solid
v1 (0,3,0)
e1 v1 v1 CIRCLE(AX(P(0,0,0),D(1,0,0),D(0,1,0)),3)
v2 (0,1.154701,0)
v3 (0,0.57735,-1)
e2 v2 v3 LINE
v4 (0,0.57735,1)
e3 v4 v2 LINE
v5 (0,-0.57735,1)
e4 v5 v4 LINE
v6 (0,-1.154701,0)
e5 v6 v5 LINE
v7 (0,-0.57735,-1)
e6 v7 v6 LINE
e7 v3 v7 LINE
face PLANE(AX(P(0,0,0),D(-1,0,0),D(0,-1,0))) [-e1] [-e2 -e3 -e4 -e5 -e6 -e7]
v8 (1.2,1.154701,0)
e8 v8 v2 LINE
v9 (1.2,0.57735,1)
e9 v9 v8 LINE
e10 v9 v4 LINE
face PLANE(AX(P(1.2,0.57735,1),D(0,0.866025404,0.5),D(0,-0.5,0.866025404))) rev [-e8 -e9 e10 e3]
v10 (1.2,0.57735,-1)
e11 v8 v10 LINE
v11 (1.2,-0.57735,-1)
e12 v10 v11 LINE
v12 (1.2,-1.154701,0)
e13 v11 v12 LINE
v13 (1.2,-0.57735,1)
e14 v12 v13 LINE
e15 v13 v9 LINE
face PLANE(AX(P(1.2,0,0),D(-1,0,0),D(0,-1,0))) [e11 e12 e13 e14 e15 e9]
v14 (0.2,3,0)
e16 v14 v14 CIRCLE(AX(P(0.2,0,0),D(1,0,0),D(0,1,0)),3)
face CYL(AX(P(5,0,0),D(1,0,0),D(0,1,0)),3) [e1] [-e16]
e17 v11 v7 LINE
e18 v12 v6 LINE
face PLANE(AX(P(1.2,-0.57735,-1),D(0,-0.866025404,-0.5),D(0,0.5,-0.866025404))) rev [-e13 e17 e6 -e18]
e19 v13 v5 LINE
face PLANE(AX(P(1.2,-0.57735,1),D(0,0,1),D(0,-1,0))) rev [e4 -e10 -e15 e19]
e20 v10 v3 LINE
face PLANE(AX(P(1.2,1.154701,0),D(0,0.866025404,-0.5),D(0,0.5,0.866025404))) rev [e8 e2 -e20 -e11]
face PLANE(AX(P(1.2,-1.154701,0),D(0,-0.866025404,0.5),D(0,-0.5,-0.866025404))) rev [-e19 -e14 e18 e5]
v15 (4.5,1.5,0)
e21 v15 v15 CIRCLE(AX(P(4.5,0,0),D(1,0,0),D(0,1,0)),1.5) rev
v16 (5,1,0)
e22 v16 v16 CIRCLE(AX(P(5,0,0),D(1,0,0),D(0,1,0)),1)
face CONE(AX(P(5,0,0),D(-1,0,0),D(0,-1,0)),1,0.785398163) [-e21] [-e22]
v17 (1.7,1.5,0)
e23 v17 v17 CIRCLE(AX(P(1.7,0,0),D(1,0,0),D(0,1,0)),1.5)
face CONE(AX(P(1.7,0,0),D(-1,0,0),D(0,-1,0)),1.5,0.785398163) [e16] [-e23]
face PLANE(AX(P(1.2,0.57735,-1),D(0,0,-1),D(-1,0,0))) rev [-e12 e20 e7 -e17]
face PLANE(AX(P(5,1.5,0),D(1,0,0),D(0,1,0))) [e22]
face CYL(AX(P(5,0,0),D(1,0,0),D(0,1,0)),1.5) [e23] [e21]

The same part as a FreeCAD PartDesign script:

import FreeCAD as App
import Part
import Sketcher
from FreeCAD import Vector
Q = App.Units.Quantity


def edges_at(feature, points):
    """Names of the edges that pass closest to the given points."""
    edges = feature.Shape.Edges
    near = lambda p: min(range(len(edges)), key=lambda i: edges[i].distToShape(Part.Vertex(*p))[0])
    return sorted({f"Edge{near(p) + 1}" for p in points})

doc = App.newDocument("Part")
body = doc.addObject("PartDesign::Body", "Body")

# Sketch on XY plane
sketch1 = body.newObject("Sketcher::SketchObject", "Sketch")
sketch1.AttachmentSupport = (doc.getObject("XY_Plane"), [""])
sketch1.MapMode = "FlatFace"
sketch1.addGeometry(Part.LineSegment(Vector(0, 3, 0), Vector(0, 0, 0)), False)
sketch1.addGeometry(Part.LineSegment(Vector(0, 0, 0), Vector(5, 0, 0)), False)
sketch1.addGeometry(Part.LineSegment(Vector(5, 0, 0), Vector(5, 1.5, 0)), False)
sketch1.addGeometry(Part.LineSegment(Vector(5, 1.5, 0), Vector(1.7, 1.5, 0)), False)
sketch1.addGeometry(Part.LineSegment(Vector(1.7, 1.5, 0), Vector(0.2, 3, 0)), False)
sketch1.addGeometry(Part.LineSegment(Vector(0.2, 3, 0), Vector(0, 3, 0)), False)
sketch1.addConstraint(Sketcher.Constraint("Coincident", 0, 2, 1, 1))
sketch1.addConstraint(Sketcher.Constraint("Coincident", 1, 2, 2, 1))
sketch1.addConstraint(Sketcher.Constraint("Coincident", 2, 2, 3, 1))
sketch1.addConstraint(Sketcher.Constraint("Coincident", 3, 2, 4, 1))
sketch1.addConstraint(Sketcher.Constraint("Coincident", 4, 2, 5, 1))
sketch1.addConstraint(Sketcher.Constraint("Coincident", 5, 2, 0, 1))
sketch1.addConstraint(Sketcher.Constraint("Vertical", 0))
sketch1.addConstraint(Sketcher.Constraint("Horizontal", 1))
sketch1.addConstraint(Sketcher.Constraint("Vertical", 2))
sketch1.addConstraint(Sketcher.Constraint("Horizontal", 3))
sketch1.addConstraint(Sketcher.Constraint("Horizontal", 5))
sketch1.addConstraint(Sketcher.Constraint("Coincident", 0, 2, -1, 1))
sketch1.addConstraint(Sketcher.Constraint("DistanceX", 1, 1, 1, 2, 5.0))
sketch1.addConstraint(Sketcher.Constraint("DistanceY", 0, 2, 0, 1, 3.0))
sketch1.addConstraint(Sketcher.Constraint("Angle", 4, Q("135 deg")))
sketch1.addConstraint(Sketcher.Constraint("DistanceX", 3, 2, 3, 1, 3.3))
sketch1.addConstraint(Sketcher.Constraint("DistanceX", 5, 2, 5, 1, 0.2))
revolution = body.newObject("PartDesign::Revolution", "Revolution")
revolution.Profile = sketch1
revolution.ReferenceAxis = (sketch1, ["H_Axis"])
revolution.Angle = 360
doc.recompute()

chamfer = body.newObject("PartDesign::Chamfer", "Chamfer")
chamfer.Base = (revolution, edges_at(revolution, [(5, -1.5, 0)]))
chamfer.Size = 0.5

# Sketch on YZ plane
sketch2 = body.newObject("Sketcher::SketchObject", "Sketch001")
sketch2.AttachmentSupport = (doc.getObject("YZ_Plane"), [""])
sketch2.MapMode = "FlatFace"
sketch2.addGeometry(Part.LineSegment(Vector(1.2, 0, 0), Vector(0.6, -1, 0)), False)
sketch2.addGeometry(Part.LineSegment(Vector(0.6, -1, 0), Vector(-0.6, -1, 0)), False)
sketch2.addGeometry(Part.LineSegment(Vector(-0.6, -1, 0), Vector(-1.2, 0, 0)), False)
sketch2.addGeometry(Part.LineSegment(Vector(-1.2, 0, 0), Vector(-0.6, 1, 0)), False)
sketch2.addGeometry(Part.LineSegment(Vector(-0.6, 1, 0), Vector(0.6, 1, 0)), False)
sketch2.addGeometry(Part.LineSegment(Vector(0.6, 1, 0), Vector(1.2, 0, 0)), False)
sketch2.addConstraint(Sketcher.Constraint("Coincident", 0, 2, 1, 1))
sketch2.addConstraint(Sketcher.Constraint("Coincident", 1, 2, 2, 1))
sketch2.addConstraint(Sketcher.Constraint("Coincident", 2, 2, 3, 1))
sketch2.addConstraint(Sketcher.Constraint("Coincident", 3, 2, 4, 1))
sketch2.addConstraint(Sketcher.Constraint("Coincident", 4, 2, 5, 1))
sketch2.addConstraint(Sketcher.Constraint("Coincident", 5, 2, 0, 1))
sketch2.addConstraint(Sketcher.Constraint("Horizontal", 1))
sketch2.addConstraint(Sketcher.Constraint("Horizontal", 4))
sketch2.addConstraint(Sketcher.Constraint("Symmetric", 0, 2, 3, 2, -1, 1))
sketch2.addConstraint(Sketcher.Constraint("Symmetric", 2, 2, 5, 2, -1, 1))
sketch2.addConstraint(Sketcher.Constraint("PointOnObject", 2, 2, -1))
sketch2.addConstraint(Sketcher.Constraint("Parallel", 2, 5))
sketch2.addConstraint(Sketcher.Constraint("Vertical", 1, 2, 3, 2))
sketch2.addConstraint(Sketcher.Constraint("Angle", 0, Q("-120 deg")))
sketch2.addConstraint(Sketcher.Constraint("DistanceY", 0, 2, -1, 1, 1.0))
sketch2.addConstraint(Sketcher.Constraint("DistanceX", 1, 2, 1, 1, 1.154701))
pocket1 = body.newObject("PartDesign::Pocket", "Pocket")
pocket1.Profile = sketch2
pocket1.Length = 1.2
pocket1.Reversed = True

doc.recompute()
